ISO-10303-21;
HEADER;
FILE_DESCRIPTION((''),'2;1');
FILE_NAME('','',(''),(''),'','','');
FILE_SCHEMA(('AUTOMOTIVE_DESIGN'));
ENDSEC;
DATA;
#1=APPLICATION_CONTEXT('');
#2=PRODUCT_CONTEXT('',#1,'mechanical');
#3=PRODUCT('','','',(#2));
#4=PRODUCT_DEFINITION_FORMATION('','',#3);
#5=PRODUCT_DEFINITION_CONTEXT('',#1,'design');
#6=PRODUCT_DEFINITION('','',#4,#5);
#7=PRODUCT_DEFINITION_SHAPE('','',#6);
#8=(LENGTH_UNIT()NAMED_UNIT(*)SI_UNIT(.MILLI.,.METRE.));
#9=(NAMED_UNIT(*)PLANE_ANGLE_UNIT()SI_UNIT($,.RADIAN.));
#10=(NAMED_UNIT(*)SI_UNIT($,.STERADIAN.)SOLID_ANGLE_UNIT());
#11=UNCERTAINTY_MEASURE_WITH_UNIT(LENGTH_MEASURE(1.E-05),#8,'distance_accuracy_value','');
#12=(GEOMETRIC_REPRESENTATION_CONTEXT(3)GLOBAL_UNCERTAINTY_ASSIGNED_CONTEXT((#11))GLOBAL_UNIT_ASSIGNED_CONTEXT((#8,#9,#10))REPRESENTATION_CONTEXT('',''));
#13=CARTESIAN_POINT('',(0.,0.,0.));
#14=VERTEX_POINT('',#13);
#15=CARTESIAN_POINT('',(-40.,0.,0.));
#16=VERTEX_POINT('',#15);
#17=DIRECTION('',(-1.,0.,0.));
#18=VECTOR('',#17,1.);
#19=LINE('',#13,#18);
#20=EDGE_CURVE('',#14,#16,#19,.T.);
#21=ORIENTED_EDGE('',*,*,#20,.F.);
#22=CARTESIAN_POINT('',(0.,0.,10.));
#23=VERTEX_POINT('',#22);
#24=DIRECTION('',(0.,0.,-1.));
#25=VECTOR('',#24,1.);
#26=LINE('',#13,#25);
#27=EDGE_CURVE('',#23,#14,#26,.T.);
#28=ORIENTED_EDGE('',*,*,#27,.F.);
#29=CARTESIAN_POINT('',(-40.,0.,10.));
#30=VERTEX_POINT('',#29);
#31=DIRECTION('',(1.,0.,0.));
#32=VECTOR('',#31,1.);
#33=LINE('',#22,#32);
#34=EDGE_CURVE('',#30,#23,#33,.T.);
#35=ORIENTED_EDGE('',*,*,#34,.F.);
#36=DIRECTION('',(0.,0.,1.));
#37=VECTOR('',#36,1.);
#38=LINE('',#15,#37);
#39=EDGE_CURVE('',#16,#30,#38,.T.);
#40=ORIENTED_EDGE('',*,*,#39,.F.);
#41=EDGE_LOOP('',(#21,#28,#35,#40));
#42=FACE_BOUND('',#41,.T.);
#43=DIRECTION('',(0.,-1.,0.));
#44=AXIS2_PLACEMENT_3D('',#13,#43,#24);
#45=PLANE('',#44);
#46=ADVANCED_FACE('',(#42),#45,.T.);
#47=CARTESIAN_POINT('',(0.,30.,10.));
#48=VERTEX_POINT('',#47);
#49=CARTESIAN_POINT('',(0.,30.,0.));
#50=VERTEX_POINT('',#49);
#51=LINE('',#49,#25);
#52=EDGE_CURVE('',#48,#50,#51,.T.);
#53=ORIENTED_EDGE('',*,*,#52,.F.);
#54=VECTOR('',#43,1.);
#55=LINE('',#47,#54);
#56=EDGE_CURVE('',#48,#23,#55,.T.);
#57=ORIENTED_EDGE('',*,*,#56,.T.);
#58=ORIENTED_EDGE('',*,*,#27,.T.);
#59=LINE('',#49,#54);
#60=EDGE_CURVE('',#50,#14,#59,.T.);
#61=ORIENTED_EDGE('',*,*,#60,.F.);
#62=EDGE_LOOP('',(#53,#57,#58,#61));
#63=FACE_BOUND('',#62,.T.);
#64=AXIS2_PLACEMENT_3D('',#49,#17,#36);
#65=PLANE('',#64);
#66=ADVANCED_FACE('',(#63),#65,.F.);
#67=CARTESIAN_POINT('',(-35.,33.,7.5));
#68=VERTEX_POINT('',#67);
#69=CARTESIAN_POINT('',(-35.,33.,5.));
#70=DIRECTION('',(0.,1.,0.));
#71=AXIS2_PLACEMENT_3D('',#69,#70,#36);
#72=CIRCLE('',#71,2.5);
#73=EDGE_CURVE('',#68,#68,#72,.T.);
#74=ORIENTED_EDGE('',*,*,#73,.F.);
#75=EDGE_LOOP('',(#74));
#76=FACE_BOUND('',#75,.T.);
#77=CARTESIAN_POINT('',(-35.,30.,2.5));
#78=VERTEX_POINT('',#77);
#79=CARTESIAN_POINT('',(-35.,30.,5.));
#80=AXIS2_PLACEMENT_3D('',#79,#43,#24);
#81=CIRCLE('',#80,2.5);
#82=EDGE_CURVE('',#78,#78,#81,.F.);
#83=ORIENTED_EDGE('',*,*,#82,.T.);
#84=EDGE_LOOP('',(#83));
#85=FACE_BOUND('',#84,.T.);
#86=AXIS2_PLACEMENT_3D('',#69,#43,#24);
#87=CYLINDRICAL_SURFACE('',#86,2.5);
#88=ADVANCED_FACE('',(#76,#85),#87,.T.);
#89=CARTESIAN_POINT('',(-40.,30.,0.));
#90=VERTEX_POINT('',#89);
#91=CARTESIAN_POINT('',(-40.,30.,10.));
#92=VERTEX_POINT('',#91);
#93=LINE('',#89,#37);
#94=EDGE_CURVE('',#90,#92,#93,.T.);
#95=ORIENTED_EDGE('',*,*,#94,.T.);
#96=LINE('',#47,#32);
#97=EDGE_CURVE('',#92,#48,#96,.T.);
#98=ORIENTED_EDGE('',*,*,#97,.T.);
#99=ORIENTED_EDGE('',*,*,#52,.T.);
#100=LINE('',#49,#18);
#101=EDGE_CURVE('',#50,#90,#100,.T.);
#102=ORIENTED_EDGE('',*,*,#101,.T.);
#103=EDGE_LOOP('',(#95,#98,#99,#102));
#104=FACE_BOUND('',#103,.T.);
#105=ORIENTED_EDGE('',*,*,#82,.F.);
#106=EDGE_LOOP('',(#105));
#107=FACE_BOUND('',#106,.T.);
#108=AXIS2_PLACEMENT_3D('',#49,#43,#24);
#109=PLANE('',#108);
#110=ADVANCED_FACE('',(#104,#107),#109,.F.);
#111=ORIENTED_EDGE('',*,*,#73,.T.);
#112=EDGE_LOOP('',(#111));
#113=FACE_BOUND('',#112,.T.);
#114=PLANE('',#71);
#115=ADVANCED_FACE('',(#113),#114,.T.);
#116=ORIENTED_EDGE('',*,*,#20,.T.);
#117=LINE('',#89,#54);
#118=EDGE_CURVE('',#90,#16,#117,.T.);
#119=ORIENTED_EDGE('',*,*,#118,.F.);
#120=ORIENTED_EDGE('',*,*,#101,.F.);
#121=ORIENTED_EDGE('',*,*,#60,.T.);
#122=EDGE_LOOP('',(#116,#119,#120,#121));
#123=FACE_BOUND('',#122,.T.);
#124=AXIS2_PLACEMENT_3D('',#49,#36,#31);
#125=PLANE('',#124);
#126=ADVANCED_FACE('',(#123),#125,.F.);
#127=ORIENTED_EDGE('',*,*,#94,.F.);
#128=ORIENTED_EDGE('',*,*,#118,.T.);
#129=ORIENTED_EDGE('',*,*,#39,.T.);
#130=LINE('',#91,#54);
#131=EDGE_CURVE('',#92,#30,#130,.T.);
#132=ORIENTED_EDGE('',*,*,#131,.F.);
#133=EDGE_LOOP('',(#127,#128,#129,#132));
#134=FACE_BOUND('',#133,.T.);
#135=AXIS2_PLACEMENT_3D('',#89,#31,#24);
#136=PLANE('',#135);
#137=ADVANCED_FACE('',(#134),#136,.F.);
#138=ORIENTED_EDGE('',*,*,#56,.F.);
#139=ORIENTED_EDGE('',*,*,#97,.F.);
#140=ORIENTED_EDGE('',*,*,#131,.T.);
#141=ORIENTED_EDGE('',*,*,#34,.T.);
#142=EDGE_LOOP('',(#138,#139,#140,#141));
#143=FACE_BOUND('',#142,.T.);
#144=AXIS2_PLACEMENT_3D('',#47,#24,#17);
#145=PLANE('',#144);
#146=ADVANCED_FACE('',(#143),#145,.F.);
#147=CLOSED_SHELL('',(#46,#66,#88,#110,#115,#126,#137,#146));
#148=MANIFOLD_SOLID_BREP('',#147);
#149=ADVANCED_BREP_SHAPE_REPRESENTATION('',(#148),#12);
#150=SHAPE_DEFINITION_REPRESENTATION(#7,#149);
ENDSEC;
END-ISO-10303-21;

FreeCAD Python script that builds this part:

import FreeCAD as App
import Part
import Sketcher
from FreeCAD import Vector
Q = App.Units.Quantity


def add_polygon(sketch, points):
    """Adds a closed chain of lines whose ends are joined by coincident constraints."""
    first, n = sketch.GeometryCount, len(points)
    for a, b in zip(points, points[1:] + points[:1]):
        sketch.addGeometry(Part.LineSegment(App.Vector(*a, 0), App.Vector(*b, 0)), False)
    for i in range(n):
        sketch.addConstraint(Sketcher.Constraint("Coincident", first + i, 2, first + (i + 1) % n, 1))

doc = App.newDocument("Part")
params = doc.addObject("Spreadsheet::Sheet", "Params")
for row, (alias, value) in enumerate([
    ("sketch1_width", "40 mm"),
    ("sketch1_height", "10 mm"),
    ("pad1_length", "30 mm"),
    ("sketch2_diameter", "5 mm"),
    ("pad2_length", "3 mm"),
], start=1):
    params.set(f"A{row}", alias)
    params.set(f"B{row}", "=" + value)
    params.setAlias(f"B{row}", alias)

body = doc.addObject("PartDesign::Body", "Body")

# Sketch on XZ plane
sketch1 = doc.addObject("Sketcher::SketchObject", "Sketch")
body.addObject(sketch1)
sketch1.AttachmentSupport = (doc.XZ_Plane, [""])
sketch1.MapMode = "FlatFace"
add_polygon(sketch1, [(-40, 0), (-40, 10), (0, 10), (0, 0)])  # lines 0-3
sketch1.addConstraint(Sketcher.Constraint("Vertical", 0))
sketch1.addConstraint(Sketcher.Constraint("Horizontal", 1))
sketch1.addConstraint(Sketcher.Constraint("Vertical", 2))
sketch1.addConstraint(Sketcher.Constraint("Horizontal", 3))
sketch1.addConstraint(Sketcher.Constraint("Coincident", 2, 2, -1, 1))
sketch1.addConstraint(Sketcher.Constraint("DistanceX", 1, 1, 1, 2, Q("40 mm")))
sketch1.addConstraint(Sketcher.Constraint("DistanceY", 0, 1, 0, 2, Q("10 mm")))
sketch1.setExpression("Constraints[9]", "Params.sketch1_width")
sketch1.setExpression("Constraints[10]", "Params.sketch1_height")
pad1 = doc.addObject("PartDesign::Pad", "Pad")
body.addObject(pad1)
pad1.Profile = sketch1
pad1.setExpression("Length", "Params.pad1_length")
pad1.Reversed = True

# Sketch on XZ plane
sketch2 = doc.addObject("Sketcher::SketchObject", "Sketch001")
body.addObject(sketch2)
sketch2.AttachmentSupport = (doc.XZ_Plane, [""])
sketch2.MapMode = "FlatFace"
sketch2.AttachmentOffset = App.Placement(Vector(0, 0, -30), App.Rotation())
sketch2.addGeometry(Part.Circle(Vector(-35, 5, 0), Vector(0, 0, 1), 2.5), False)
sketch2.addConstraint(Sketcher.Constraint("Diameter", 0, Q("5 mm")))
sketch2.addConstraint(Sketcher.Constraint("DistanceX", 0, 3, -1, 1, Q("35 mm")))
sketch2.addConstraint(Sketcher.Constraint("DistanceY", -1, 1, 0, 3, Q("5 mm")))
sketch2.setExpression("Constraints[0]", "Params.sketch2_diameter")
pad2 = doc.addObject("PartDesign::Pad", "Pad001")
body.addObject(pad2)
pad2.Profile = sketch2
pad2.setExpression("Length", "Params.pad2_length")
pad2.Reversed = True

doc.recompute()
